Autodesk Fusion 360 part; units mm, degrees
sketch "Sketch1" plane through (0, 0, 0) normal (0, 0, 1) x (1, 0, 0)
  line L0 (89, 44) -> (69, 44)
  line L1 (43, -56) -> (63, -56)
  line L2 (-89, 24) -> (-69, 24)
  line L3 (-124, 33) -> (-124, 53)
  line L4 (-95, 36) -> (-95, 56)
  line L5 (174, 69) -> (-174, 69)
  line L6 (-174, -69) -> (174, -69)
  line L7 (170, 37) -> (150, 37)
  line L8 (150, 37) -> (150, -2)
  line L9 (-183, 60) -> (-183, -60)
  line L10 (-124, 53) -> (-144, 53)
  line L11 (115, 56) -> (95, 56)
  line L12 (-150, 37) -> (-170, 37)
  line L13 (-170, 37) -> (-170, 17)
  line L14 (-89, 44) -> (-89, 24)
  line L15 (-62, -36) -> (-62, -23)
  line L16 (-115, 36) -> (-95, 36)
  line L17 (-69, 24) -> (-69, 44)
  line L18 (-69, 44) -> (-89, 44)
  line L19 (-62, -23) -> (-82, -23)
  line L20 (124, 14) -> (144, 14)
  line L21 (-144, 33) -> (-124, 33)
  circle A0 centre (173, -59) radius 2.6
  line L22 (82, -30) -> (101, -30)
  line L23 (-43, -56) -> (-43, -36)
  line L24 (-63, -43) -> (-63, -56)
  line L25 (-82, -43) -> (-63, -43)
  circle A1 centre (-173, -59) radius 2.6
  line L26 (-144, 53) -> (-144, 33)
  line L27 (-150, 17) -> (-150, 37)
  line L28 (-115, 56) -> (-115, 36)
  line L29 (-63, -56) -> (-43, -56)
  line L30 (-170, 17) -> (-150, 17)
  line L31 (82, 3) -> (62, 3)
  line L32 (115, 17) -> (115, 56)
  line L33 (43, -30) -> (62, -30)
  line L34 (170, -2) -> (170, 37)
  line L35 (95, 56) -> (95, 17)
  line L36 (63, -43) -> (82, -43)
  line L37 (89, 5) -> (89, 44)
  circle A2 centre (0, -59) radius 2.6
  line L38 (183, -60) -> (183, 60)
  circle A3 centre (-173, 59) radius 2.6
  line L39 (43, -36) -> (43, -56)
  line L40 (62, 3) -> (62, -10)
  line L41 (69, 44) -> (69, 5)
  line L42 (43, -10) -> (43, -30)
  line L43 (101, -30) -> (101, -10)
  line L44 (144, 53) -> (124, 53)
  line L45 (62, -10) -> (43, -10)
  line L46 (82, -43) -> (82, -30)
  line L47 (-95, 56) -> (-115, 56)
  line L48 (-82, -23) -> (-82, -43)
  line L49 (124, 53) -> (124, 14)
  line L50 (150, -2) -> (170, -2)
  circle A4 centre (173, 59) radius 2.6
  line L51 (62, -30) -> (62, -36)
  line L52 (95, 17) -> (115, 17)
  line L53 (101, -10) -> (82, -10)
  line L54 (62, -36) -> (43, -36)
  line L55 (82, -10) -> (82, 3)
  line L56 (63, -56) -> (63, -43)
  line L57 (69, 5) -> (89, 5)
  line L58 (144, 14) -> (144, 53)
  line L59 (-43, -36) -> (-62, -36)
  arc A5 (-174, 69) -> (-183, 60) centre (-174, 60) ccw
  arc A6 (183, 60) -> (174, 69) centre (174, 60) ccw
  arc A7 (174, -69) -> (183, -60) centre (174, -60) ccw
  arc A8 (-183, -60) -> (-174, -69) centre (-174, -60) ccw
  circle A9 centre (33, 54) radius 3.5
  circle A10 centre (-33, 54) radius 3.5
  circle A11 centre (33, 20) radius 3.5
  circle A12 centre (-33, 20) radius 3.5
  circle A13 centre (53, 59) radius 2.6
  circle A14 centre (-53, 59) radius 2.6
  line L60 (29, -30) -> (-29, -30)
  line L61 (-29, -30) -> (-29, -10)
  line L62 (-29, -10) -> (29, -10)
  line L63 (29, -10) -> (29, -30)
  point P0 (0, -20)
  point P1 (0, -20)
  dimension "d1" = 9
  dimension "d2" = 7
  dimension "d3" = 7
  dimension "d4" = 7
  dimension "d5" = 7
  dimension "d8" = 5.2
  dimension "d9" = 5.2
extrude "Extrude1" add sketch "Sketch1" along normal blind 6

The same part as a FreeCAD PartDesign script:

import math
import FreeCAD as App
import Part
import Sketcher
from FreeCAD import Vector
Q = App.Units.Quantity


def add_polygon(sketch, points):
    """Adds a closed chain of lines whose ends are joined by coincident constraints."""
    first, n = sketch.GeometryCount, len(points)
    for a, b in zip(points, points[1:] + points[:1]):
        sketch.addGeometry(Part.LineSegment(App.Vector(*a, 0), App.Vector(*b, 0)), False)
    for i in range(n):
        sketch.addConstraint(Sketcher.Constraint("Coincident", first + i, 2, first + (i + 1) % n, 1))

doc = App.newDocument("Part")
body = doc.addObject("PartDesign::Body", "Body")

# Sketch on XY plane
sketch1 = doc.addObject("Sketcher::SketchObject", "Sketch")
body.addObject(sketch1)
sketch1.AttachmentSupport = (doc.XY_Plane, [""])
sketch1.MapMode = "FlatFace"
sketch1.addGeometry(Part.ArcOfCircle(Part.Circle(Vector(174, 60, 0), Vector(0, 0, 1), 9), math.radians(0), math.radians(90)), False)  # 0
sketch1.addGeometry(Part.LineSegment(Vector(174, 69, 0), Vector(-174, 69, 0)), False)  # 1
sketch1.addGeometry(Part.ArcOfCircle(Part.Circle(Vector(-174, 60, 0), Vector(0, 0, 1), 9), math.radians(90), math.radians(180)), False)  # 2
sketch1.addGeometry(Part.LineSegment(Vector(-183, 60, 0), Vector(-183, -60, 0)), False)  # 3
sketch1.addGeometry(Part.ArcOfCircle(Part.Circle(Vector(-174, -60, 0), Vector(0, 0, 1), 9), math.radians(180), math.radians(270)), False)  # 4
sketch1.addGeometry(Part.LineSegment(Vector(-174, -69, 0), Vector(174, -69, 0)), False)  # 5
sketch1.addGeometry(Part.ArcOfCircle(Part.Circle(Vector(174, -60, 0), Vector(0, 0, 1), 9), math.radians(-90), math.radians(0)), False)  # 6
sketch1.addGeometry(Part.LineSegment(Vector(183, -60, 0), Vector(183, 60, 0)), False)  # 7
sketch1.addGeometry(Part.Circle(Vector(-173, -59, 0), Vector(0, 0, 1), 2.6), False)  # 8
add_polygon(sketch1, [(-62, -23), (-62, -36), (-43, -36), (-43, -56), (-63, -56), (-63, -43), (-82, -43), (-82, -23)])  # lines 9-16
sketch1.addGeometry(Part.Circle(Vector(0, -59, 0), Vector(0, 0, 1), 2.6), False)  # 17
sketch1.addGeometry(Part.Circle(Vector(173, -59, 0), Vector(0, 0, 1), 2.6), False)  # 18
add_polygon(sketch1, [(29, -10), (29, -30), (-29, -30), (-29, -10)])  # lines 19-22
add_polygon(sketch1, [(63, -56), (43, -56), (43, -36), (62, -36), (62, -30), (43, -30), (43, -10), (62, -10), (62, 3), (82, 3), (82, -10), (101, -10), (101, -30), (82, -30), (82, -43), (63, -43)])  # lines 23-38
add_polygon(sketch1, [(-170, 37), (-150, 37), (-150, 17), (-170, 17)])  # lines 39-42
add_polygon(sketch1, [(-69, 24), (-89, 24), (-89, 44), (-69, 44)])  # lines 43-46
sketch1.addGeometry(Part.Circle(Vector(-33, 20, 0), Vector(0, 0, 1), 3.5), False)  # 47
add_polygon(sketch1, [(-124, 53), (-124, 33), (-144, 33), (-144, 53)])  # lines 48-51
add_polygon(sketch1, [(-95, 56), (-95, 36), (-115, 36), (-115, 56)])  # lines 52-55
sketch1.addGeometry(Part.Circle(Vector(-173, 59, 0), Vector(0, 0, 1), 2.6), False)  # 56
sketch1.addGeometry(Part.Circle(Vector(-53, 59, 0), Vector(0, 0, 1), 2.6), False)  # 57
sketch1.addGeometry(Part.Circle(Vector(-33, 54, 0), Vector(0, 0, 1), 3.5), False)  # 58
sketch1.addGeometry(Part.Circle(Vector(33, 20, 0), Vector(0, 0, 1), 3.5), False)  # 59
add_polygon(sketch1, [(69, 44), (89, 44), (89, 5), (69, 5)])  # lines 60-63
add_polygon(sketch1, [(144, 14), (124, 14), (124, 53), (144, 53)])  # lines 64-67
add_polygon(sketch1, [(150, 37), (170, 37), (170, -2), (150, -2)])  # lines 68-71
sketch1.addGeometry(Part.Circle(Vector(33, 54, 0), Vector(0, 0, 1), 3.5), False)  # 72
sketch1.addGeometry(Part.Circle(Vector(53, 59, 0), Vector(0, 0, 1), 2.6), False)  # 73
add_polygon(sketch1, [(95, 56), (115, 56), (115, 17), (95, 17)])  # lines 74-77
sketch1.addGeometry(Part.Circle(Vector(173, 59, 0), Vector(0, 0, 1), 2.6), False)  # 78
sketch1.addConstraint([
    Sketcher.Constraint("Tangent", 0, 2, 1, 1),
    Sketcher.Constraint("Tangent", 1, 2, 2, 1),
    Sketcher.Constraint("Tangent", 2, 2, 3, 1),
    Sketcher.Constraint("Tangent", 3, 2, 4, 1),
    Sketcher.Constraint("Tangent", 4, 2, 5, 1),
    Sketcher.Constraint("Tangent", 5, 2, 6, 1),
    Sketcher.Constraint("Tangent", 6, 2, 7, 1),
    Sketcher.Constraint("Tangent", 7, 2, 0, 1),
    Sketcher.Constraint("Horizontal", 1),
    Sketcher.Constraint("Vertical", 3),
    Sketcher.Constraint("Horizontal", 5),
    Sketcher.Constraint("Vertical", 7),
    Sketcher.Constraint("Vertical", 9),
    Sketcher.Constraint("Horizontal", 10),
    Sketcher.Constraint("Vertical", 11),
    Sketcher.Constraint("Horizontal", 12),
    Sketcher.Constraint("Vertical", 13),
    Sketcher.Constraint("Horizontal", 14),
    Sketcher.Constraint("Vertical", 15),
    Sketcher.Constraint("Horizontal", 16),
    Sketcher.Constraint("Vertical", 19),
    Sketcher.Constraint("Horizontal", 20),
    Sketcher.Constraint("Vertical", 21),
    Sketcher.Constraint("Horizontal", 22),
    Sketcher.Constraint("Horizontal", 23),
    Sketcher.Constraint("Vertical", 24),
    Sketcher.Constraint("Horizontal", 25),
    Sketcher.Constraint("Vertical", 26),
    Sketcher.Constraint("Horizontal", 27),
    Sketcher.Constraint("Vertical", 28),
    Sketcher.Constraint("Horizontal", 29),
    Sketcher.Constraint("Vertical", 30),
    Sketcher.Constraint("Horizontal", 31),
    Sketcher.Constraint("Vertical", 32),
    Sketcher.Constraint("Horizontal", 33),
    Sketcher.Constraint("Vertical", 34),
    Sketcher.Constraint("Horizontal", 35),
    Sketcher.Constraint("Vertical", 36),
    Sketcher.Constraint("Horizontal", 37),
    Sketcher.Constraint("Vertical", 38),
    Sketcher.Constraint("Horizontal", 39),
    Sketcher.Constraint("Vertical", 40),
    Sketcher.Constraint("Horizontal", 41),
    Sketcher.Constraint("Vertical", 42),
    Sketcher.Constraint("Horizontal", 43),
    Sketcher.Constraint("Vertical", 44),
    Sketcher.Constraint("Horizontal", 45),
    Sketcher.Constraint("Vertical", 46),
    Sketcher.Constraint("Vertical", 48),
    Sketcher.Constraint("Horizontal", 49),
    Sketcher.Constraint("Vertical", 50),
    Sketcher.Constraint("Horizontal", 51),
    Sketcher.Constraint("Vertical", 52),
    Sketcher.Constraint("Horizontal", 53),
    Sketcher.Constraint("Vertical", 54),
    Sketcher.Constraint("Horizontal", 55),
    Sketcher.Constraint("Horizontal", 60),
    Sketcher.Constraint("Vertical", 61),
    Sketcher.Constraint("Horizontal", 62),
    Sketcher.Constraint("Vertical", 63),
    Sketcher.Constraint("Horizontal", 64),
    Sketcher.Constraint("Vertical", 65),
    Sketcher.Constraint("Horizontal", 66),
    Sketcher.Constraint("Vertical", 67),
    Sketcher.Constraint("Horizontal", 68),
    Sketcher.Constraint("Vertical", 69),
    Sketcher.Constraint("Horizontal", 70),
    Sketcher.Constraint("Vertical", 71),
    Sketcher.Constraint("Horizontal", 74),
    Sketcher.Constraint("Vertical", 75),
    Sketcher.Constraint("Horizontal", 76),
    Sketcher.Constraint("Vertical", 77),
    Sketcher.Constraint("Equal", 0, 2),
    Sketcher.Constraint("Equal", 2, 4),
    Sketcher.Constraint("Equal", 4, 6),
    Sketcher.Constraint("Equal", 8, 17),
    Sketcher.Constraint("Equal", 17, 18),
    Sketcher.Constraint("Equal", 18, 56),
    Sketcher.Constraint("Equal", 56, 57),
    Sketcher.Constraint("Equal", 47, 58),
    Sketcher.Constraint("Equal", 58, 59),
    Sketcher.Constraint("Equal", 59, 72),
    Sketcher.Constraint("Equal", 57, 73),
    Sketcher.Constraint("Equal", 73, 78),
    Sketcher.Constraint("Symmetric", 0, 3, 4, 3, -1, 1),
    Sketcher.Constraint("Symmetric", 18, 3, 56, 3, -1, 1),
    Sketcher.Constraint("Symmetric", 8, 3, 78, 3, -1, 1),
    Sketcher.Constraint("Symmetric", 8, 3, 18, 3, -2),
    Sketcher.Constraint("Symmetric", 47, 3, 59, 3, -2),
    Sketcher.Constraint("Symmetric", 58, 3, 72, 3, -2),
    Sketcher.Constraint("Symmetric", 57, 3, 73, 3, -2),
    Sketcher.Constraint("Symmetric", 11, 2, 23, 2, -2),
    Sketcher.Constraint("Symmetric", 9, 2, 25, 2, -2),
    Sketcher.Constraint("Symmetric", 14, 2, 36, 2, -2),
    Sketcher.Constraint("Symmetric", 44, 2, 60, 2, -2),
    Sketcher.Constraint("Symmetric", 51, 2, 65, 2, -2),
    Sketcher.Constraint("Symmetric", 42, 2, 68, 2, -2),
    Sketcher.Constraint("Symmetric", 54, 2, 74, 2, -2),
    Sketcher.Constraint("PointOnObject", 17, 3, -2),
    Sketcher.Constraint("Horizontal", 8, 3, 17, 3),
    Sketcher.Constraint("Horizontal", 56, 3, 57, 3),
    Sketcher.Constraint("Horizontal", 20, 2, 26, 2),
    Sketcher.Constraint("Horizontal", 22, 2, 28, 2),
    Sketcher.Constraint("Horizontal", 29, 2, 32, 2),
    Sketcher.Constraint("Horizontal", 27, 2, 34, 2),
    Sketcher.Constraint("Horizontal", 41, 2, 75, 2),
    Sketcher.Constraint("Vertical", 47, 3, 58, 3),
    Sketcher.Constraint("Vertical", 24, 2, 27, 2),
    Sketcher.Constraint("Vertical", 26, 2, 29, 2),
    Sketcher.Constraint("Vertical", 32, 2, 35, 2),
    Sketcher.Constraint("Equal", 10, 14),
    Sketcher.Constraint("Equal", 16, 23),
    Sketcher.Constraint("Equal", 29, 33),
    Sketcher.Constraint("Equal", 31, 39),
    Sketcher.Constraint("Equal", 41, 43),
    Sketcher.Constraint("Equal", 45, 49),
    Sketcher.Constraint("Equal", 51, 53),
    Sketcher.Constraint("Equal", 55, 60),
    Sketcher.Constraint("Equal", 62, 64),
    Sketcher.Constraint("Equal", 66, 68),
    Sketcher.Constraint("Equal", 70, 74),
    Sketcher.Constraint("Equal", 76, 11),
    Sketcher.Constraint("Equal", 9, 13),
    Sketcher.Constraint("Equal", 15, 19),
    Sketcher.Constraint("Equal", 13, 30),
    Sketcher.Constraint("Equal", 32, 36),
    Sketcher.Constraint("Equal", 34, 40),
    Sketcher.Constraint("Equal", 42, 44),
    Sketcher.Constraint("Equal", 46, 48),
    Sketcher.Constraint("Equal", 50, 52),
    Sketcher.Constraint("Equal", 63, 65),
    Sketcher.Constraint("Equal", 67, 69),
    Sketcher.Constraint("Equal", 71, 75),
    Sketcher.Constraint("Diameter", 47, Q("7 mm")),
    Sketcher.Constraint("Radius", 0, Q("9 mm")),
    Sketcher.Constraint("Diameter", 8, Q("5.2 mm")),
    Sketcher.Constraint("DistanceX", 1, 2, 1, 1, Q("348 mm")),
    Sketcher.Constraint("DistanceX", 10, 1, 10, 2, Q("19 mm")),
    Sketcher.Constraint("DistanceX", 12, 2, 12, 1, Q("20 mm")),
    Sketcher.Constraint("DistanceX", 20, 2, 20, 1, Q("58 mm")),
    Sketcher.Constraint("DistanceY", 3, 2, 3, 1, Q("120 mm")),
    Sketcher.Constraint("DistanceY", 9, 2, 9, 1, Q("13 mm")),
    Sketcher.Constraint("DistanceY", 61, 2, 61, 1, Q("39 mm")),
    Sketcher.Constraint("DistanceX", 8, 3, -1, 1, Q("173 mm")),
    Sketcher.Constraint("DistanceY", 8, 3, -1, 1, Q("59 mm")),
    Sketcher.Constraint("DistanceX", 47, 3, -1, 1, Q("33 mm")),
    Sketcher.Constraint("DistanceY", -1, 1, 47, 3, Q("20 mm")),
    Sketcher.Constraint("DistanceX", 57, 3, -1, 1, Q("53 mm")),
    Sketcher.Constraint("DistanceY", -1, 1, 58, 3, Q("54 mm")),
    Sketcher.Constraint("DistanceX", 9, 2, -1, 1, Q("62 mm")),
    Sketcher.Constraint("DistanceY", 9, 2, -1, 1, Q("36 mm")),
    Sketcher.Constraint("DistanceX", -1, 1, 19, 2, Q("29 mm")),
    Sketcher.Constraint("DistanceX", 39, 2, -1, 1, Q("150 mm")),
    Sketcher.Constraint("DistanceY", -1, 1, 39, 2, Q("37 mm")),
    Sketcher.Constraint("DistanceX", 43, 2, -1, 1, Q("89 mm")),
    Sketcher.Constraint("DistanceY", -1, 1, 43, 2, Q("24 mm")),
    Sketcher.Constraint("DistanceX", 48, 2, -1, 1, Q("124 mm")),
    Sketcher.Constraint("DistanceY", -1, 1, 48, 2, Q("33 mm")),
    Sketcher.Constraint("DistanceX", 52, 2, -1, 1, Q("95 mm")),
])
pad1 = doc.addObject("PartDesign::Pad", "Pad")
body.addObject(pad1)
pad1.Profile = sketch1
pad1.Length = 6

doc.recompute()
